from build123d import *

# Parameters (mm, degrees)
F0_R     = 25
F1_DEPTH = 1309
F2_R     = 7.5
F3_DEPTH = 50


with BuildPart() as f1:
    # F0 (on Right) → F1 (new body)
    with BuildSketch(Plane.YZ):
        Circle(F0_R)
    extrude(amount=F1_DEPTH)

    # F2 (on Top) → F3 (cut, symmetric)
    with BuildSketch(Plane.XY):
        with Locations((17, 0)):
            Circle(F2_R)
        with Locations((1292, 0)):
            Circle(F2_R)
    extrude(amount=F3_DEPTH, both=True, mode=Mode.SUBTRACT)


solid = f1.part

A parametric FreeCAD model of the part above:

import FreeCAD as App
import Part
import Sketcher

V = App.Vector
Q = App.Units.Quantity

doc = App.newDocument("Part")
body = doc.addObject("PartDesign::Body", "Body")

sketch1 = body.newObject("Sketcher::SketchObject", "Sketch")
sketch1.AttachmentSupport = (doc.getObject("YZ_Plane"), [""])
sketch1.MapMode = "FlatFace"
sketch1.addGeometry(Part.Circle(V(0, 0, 0), V(0, 0, 1), 25), False)
sketch1.addConstraint([
    Sketcher.Constraint("Coincident", 0, 3, -1, 1),
    Sketcher.Constraint("Diameter", 0, Q("50 mm")),
])
pad1 = body.newObject("PartDesign::Pad", "Pad")
pad1.Profile = sketch1
pad1.Length = 1309

sketch2 = body.newObject("Sketcher::SketchObject", "Sketch001")
sketch2.AttachmentSupport = (doc.getObject("XY_Plane"), [""])
sketch2.MapMode = "FlatFace"
sketch2.addGeometry([
    Part.Circle(V(17, 0, 0), V(0, 0, 1), 7.5),
    Part.Circle(V(1292, 0, 0), V(0, 0, 1), 7.5),
], False)
sketch2.addConstraint([
    Sketcher.Constraint("Equal", 0, 1),
    Sketcher.Constraint("PointOnObject", 0, 3, -1),
    Sketcher.Constraint("PointOnObject", 1, 3, -1),
    Sketcher.Constraint("Diameter", 0, Q("15 mm")),
    Sketcher.Constraint("DistanceX", -1, 1, 0, 3, Q("17 mm")),
    Sketcher.Constraint("DistanceX", -1, 1, 1, 3, Q("1292 mm")),
])
pocket1 = body.newObject("PartDesign::Pocket", "Pocket")
pocket1.Profile = sketch2
pocket1.Length = 100
pocket1.Midplane = True

doc.recompute()
